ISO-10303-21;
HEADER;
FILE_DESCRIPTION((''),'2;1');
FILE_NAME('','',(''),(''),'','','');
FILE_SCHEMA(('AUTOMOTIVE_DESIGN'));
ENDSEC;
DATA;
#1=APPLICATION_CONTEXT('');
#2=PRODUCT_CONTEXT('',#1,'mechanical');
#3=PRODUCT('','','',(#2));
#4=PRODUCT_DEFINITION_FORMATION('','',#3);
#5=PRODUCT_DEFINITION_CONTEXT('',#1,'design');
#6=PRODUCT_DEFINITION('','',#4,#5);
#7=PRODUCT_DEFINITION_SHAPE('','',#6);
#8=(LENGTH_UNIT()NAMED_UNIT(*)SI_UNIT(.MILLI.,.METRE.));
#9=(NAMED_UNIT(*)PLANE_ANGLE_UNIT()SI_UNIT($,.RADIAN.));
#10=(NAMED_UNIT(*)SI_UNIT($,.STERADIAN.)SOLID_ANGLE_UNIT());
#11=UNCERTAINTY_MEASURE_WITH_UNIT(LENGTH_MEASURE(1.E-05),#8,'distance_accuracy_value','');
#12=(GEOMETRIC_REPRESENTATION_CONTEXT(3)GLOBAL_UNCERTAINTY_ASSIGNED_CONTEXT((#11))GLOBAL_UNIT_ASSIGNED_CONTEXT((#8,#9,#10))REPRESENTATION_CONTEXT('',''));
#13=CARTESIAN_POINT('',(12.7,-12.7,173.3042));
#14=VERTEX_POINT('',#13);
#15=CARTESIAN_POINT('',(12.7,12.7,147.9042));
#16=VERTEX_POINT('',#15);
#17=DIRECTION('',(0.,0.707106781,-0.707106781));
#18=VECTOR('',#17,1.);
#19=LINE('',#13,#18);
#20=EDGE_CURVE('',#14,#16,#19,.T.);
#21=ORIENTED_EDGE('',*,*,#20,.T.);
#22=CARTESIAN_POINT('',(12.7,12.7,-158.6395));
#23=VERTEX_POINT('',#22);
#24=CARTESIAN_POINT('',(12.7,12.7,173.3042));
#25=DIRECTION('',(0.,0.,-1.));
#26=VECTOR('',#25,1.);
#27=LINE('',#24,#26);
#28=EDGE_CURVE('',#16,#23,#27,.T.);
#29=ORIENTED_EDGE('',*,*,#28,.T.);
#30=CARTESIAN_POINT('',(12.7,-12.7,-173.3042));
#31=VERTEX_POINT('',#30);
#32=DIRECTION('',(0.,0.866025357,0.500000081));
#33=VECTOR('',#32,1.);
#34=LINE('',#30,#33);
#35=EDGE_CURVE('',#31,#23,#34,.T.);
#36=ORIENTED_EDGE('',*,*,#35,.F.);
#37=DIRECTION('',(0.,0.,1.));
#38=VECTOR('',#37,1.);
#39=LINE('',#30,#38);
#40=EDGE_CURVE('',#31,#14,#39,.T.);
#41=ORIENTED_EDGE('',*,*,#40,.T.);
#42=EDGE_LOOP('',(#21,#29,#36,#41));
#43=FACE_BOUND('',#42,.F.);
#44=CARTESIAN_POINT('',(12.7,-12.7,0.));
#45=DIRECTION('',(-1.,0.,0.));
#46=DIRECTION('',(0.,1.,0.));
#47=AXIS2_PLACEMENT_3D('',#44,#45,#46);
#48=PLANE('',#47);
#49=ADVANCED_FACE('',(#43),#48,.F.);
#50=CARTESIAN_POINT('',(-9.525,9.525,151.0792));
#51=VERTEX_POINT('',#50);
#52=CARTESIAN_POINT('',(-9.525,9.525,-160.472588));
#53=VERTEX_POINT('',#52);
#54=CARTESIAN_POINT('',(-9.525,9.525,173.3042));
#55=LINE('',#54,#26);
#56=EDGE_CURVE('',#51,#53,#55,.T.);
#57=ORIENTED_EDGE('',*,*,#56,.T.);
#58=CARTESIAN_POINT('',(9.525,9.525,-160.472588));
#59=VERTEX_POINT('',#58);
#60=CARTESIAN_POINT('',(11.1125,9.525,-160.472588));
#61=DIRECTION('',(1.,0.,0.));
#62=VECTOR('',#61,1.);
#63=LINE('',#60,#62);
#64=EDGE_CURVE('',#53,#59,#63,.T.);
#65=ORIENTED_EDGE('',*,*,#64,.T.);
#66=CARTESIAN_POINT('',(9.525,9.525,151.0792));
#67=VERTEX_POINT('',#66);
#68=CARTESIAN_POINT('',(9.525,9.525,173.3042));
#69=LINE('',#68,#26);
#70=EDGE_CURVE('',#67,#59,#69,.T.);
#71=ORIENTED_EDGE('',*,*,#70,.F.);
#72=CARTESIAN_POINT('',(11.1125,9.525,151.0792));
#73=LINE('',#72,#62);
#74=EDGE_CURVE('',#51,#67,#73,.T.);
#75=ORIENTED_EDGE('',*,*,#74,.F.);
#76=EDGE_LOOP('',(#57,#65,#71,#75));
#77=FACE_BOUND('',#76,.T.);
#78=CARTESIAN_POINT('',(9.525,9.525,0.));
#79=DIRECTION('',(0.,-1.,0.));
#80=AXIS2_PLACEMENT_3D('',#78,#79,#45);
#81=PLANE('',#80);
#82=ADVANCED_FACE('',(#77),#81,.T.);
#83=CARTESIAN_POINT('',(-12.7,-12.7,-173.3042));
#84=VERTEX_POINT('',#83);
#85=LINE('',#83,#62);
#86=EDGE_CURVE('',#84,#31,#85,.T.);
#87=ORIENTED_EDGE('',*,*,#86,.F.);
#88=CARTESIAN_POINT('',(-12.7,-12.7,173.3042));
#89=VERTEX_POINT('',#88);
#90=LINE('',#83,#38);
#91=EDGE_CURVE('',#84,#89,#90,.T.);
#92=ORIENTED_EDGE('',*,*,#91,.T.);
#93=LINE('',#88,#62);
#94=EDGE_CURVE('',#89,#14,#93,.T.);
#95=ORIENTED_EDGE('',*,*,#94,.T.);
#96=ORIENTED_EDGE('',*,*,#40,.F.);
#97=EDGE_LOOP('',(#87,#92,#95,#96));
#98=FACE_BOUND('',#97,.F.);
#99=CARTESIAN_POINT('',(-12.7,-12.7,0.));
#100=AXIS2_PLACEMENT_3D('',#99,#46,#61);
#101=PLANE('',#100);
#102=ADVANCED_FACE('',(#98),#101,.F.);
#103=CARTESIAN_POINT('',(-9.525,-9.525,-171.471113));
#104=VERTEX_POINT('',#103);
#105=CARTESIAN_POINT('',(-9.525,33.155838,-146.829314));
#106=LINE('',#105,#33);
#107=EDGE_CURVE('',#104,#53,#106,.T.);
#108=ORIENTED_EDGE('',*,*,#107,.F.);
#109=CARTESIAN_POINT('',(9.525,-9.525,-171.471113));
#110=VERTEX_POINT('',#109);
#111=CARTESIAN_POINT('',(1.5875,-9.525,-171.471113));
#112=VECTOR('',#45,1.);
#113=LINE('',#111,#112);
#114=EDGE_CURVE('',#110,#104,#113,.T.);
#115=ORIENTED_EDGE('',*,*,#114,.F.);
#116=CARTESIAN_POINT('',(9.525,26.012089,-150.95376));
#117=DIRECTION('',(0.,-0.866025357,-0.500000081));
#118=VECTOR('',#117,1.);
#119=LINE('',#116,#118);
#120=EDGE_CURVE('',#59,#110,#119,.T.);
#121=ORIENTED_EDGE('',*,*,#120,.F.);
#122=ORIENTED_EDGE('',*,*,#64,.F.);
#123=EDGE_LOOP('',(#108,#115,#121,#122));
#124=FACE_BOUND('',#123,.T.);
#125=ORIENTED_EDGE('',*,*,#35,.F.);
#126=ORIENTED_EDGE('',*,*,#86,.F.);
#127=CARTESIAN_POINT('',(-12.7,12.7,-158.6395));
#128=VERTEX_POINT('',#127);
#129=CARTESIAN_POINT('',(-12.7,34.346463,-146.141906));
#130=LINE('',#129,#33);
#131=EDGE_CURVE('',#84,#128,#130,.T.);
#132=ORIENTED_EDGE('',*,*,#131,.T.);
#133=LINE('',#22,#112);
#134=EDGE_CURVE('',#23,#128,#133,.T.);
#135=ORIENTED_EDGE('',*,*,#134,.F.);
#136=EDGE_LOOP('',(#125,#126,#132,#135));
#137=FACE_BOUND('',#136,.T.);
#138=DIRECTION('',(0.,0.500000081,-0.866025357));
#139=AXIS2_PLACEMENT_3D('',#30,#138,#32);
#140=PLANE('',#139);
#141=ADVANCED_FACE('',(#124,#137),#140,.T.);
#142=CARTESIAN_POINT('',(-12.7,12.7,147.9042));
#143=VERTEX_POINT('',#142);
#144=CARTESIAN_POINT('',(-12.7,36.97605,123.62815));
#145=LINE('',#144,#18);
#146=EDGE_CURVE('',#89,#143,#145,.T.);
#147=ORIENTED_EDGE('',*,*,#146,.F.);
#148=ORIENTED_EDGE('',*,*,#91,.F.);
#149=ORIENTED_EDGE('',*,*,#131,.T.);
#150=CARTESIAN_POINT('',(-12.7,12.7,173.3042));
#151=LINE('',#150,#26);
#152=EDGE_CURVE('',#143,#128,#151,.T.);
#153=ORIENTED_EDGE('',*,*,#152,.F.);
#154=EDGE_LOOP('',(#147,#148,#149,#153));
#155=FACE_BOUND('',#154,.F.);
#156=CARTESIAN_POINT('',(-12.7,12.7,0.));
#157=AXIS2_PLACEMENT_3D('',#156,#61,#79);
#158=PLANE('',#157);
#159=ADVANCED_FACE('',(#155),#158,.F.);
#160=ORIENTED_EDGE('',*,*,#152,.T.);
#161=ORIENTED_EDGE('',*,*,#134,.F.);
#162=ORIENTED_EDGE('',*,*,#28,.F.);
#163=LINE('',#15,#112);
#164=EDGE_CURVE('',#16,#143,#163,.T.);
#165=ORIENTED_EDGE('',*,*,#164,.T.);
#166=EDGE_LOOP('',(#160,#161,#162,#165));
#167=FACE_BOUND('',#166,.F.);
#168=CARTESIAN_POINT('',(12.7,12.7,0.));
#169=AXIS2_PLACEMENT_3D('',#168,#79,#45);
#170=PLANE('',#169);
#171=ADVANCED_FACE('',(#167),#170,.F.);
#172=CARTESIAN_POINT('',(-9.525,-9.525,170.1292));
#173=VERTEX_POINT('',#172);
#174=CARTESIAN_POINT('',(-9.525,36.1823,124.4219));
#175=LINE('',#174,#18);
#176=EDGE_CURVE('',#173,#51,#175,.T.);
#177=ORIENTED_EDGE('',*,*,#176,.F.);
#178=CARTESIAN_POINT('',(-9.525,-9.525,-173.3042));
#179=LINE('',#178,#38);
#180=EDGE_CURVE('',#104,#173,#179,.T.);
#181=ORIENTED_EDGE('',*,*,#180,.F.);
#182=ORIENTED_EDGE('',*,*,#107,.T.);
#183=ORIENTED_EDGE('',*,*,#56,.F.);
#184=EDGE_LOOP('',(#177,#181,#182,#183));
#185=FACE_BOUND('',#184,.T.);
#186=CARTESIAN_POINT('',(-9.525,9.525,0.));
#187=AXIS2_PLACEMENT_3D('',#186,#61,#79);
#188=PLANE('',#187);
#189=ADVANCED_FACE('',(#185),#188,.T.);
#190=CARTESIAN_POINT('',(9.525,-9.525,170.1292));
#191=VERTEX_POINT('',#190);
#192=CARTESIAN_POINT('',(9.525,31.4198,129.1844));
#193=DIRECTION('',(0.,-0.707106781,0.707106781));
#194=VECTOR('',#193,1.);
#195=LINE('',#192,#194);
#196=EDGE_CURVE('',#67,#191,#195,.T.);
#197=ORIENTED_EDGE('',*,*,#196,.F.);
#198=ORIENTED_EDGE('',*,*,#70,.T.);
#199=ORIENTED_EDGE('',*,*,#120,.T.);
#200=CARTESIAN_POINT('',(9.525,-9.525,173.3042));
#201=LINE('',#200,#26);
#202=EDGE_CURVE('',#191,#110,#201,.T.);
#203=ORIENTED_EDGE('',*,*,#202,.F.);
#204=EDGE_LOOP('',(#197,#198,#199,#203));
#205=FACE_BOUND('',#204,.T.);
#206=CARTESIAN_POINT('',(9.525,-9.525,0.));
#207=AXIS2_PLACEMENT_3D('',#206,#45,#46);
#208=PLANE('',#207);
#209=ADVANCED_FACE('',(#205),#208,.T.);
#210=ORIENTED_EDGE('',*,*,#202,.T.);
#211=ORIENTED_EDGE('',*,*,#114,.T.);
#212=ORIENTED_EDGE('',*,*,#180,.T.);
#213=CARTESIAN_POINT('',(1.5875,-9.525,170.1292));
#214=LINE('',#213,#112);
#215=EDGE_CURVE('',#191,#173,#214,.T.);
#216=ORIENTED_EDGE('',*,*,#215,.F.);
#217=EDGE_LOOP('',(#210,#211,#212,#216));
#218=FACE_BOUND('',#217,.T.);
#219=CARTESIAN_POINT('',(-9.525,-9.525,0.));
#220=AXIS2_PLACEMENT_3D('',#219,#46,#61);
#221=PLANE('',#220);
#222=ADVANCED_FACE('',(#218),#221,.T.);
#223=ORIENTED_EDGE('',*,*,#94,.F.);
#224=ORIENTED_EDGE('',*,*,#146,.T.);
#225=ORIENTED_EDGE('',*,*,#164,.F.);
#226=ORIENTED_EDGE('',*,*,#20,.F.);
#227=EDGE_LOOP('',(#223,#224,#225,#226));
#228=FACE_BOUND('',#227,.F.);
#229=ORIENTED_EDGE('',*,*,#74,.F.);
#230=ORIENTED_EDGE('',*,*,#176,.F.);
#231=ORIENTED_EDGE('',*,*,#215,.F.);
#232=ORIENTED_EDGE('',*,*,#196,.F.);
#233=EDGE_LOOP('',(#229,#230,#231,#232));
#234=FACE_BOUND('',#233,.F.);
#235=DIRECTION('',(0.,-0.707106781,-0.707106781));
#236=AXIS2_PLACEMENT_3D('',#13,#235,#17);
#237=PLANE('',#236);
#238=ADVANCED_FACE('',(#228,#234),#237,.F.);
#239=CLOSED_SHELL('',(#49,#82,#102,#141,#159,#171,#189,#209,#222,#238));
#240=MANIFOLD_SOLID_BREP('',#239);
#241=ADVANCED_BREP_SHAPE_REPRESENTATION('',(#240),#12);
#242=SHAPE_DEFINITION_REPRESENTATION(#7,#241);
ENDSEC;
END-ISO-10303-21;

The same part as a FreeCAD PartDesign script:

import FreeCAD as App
import Part
import Sketcher
from FreeCAD import Vector
Q = App.Units.Quantity

doc = App.newDocument("Part")
params = doc.addObject("Spreadsheet::Sheet", "Params")
for row, (alias, value) in enumerate([
    ("sketch1_width", "1 in"),
    ("pad1_length", "13.646 in"),
    ("sketch2_width", "1 in"),
    ("sketch3_width", "1 in"),
], start=1):
    params.set(f"A{row}", alias)
    params.set(f"B{row}", "=" + value)
    params.setAlias(f"B{row}", alias)

body = doc.addObject("PartDesign::Body", "Body")

# Sketch on XY plane
sketch1 = body.newObject("Sketcher::SketchObject", "Sketch")
sketch1.AttachmentSupport = (doc.getObject("XY_Plane"), [""])
sketch1.MapMode = "FlatFace"
sketch1.addGeometry([
    Part.LineSegment(Vector(-13, 13, 0), Vector(-13, -13, 0)),  # 0
    Part.LineSegment(Vector(-13, -13, 0), Vector(13, -13, 0)),  # 1
    Part.LineSegment(Vector(13, -13, 0), Vector(13, 13, 0)),  # 2
    Part.LineSegment(Vector(13, 13, 0), Vector(-13, 13, 0)),  # 3
    Part.LineSegment(Vector(10, -10, 0), Vector(-10, -10, 0)),  # 4
    Part.LineSegment(Vector(-10, -10, 0), Vector(-10, 10, 0)),  # 5
    Part.LineSegment(Vector(-10, 10, 0), Vector(10, 10, 0)),  # 6
    Part.LineSegment(Vector(10, 10, 0), Vector(10, -10, 0)),  # 7
], False)
sketch1.addConstraint([
    Sketcher.Constraint("Coincident", 0, 2, 1, 1),
    Sketcher.Constraint("Coincident", 1, 2, 2, 1),
    Sketcher.Constraint("Coincident", 2, 2, 3, 1),
    Sketcher.Constraint("Coincident", 3, 2, 0, 1),
    Sketcher.Constraint("Coincident", 4, 2, 5, 1),
    Sketcher.Constraint("Coincident", 5, 2, 6, 1),
    Sketcher.Constraint("Coincident", 6, 2, 7, 1),
    Sketcher.Constraint("Coincident", 7, 2, 4, 1),
    Sketcher.Constraint("Vertical", 0),
    Sketcher.Constraint("Horizontal", 1),
    Sketcher.Constraint("Vertical", 2),
    Sketcher.Constraint("Horizontal", 3),
    Sketcher.Constraint("Horizontal", 4),
    Sketcher.Constraint("Vertical", 5),
    Sketcher.Constraint("Horizontal", 6),
    Sketcher.Constraint("Vertical", 7),
    Sketcher.Constraint("Symmetric", 0, 2, 2, 2, -1, 1),
    Sketcher.Constraint("Symmetric", 4, 2, 6, 2, -1, 1),
    Sketcher.Constraint("Equal", 3, 0),
    Sketcher.Constraint("Equal", 6, 5),
    Sketcher.Constraint("DistanceX", 1, 1, 1, 2, Q("1 in")),
    Sketcher.Constraint("DistanceX", 0, 2, 4, 2, Q("0.125 in")),
])
sketch1.setExpression("Constraints[20]", "Params.sketch1_width")
pad1 = body.newObject("PartDesign::Pad", "Pad")
pad1.Profile = sketch1
pad1.setExpression("Length", "Params.pad1_length")
pad1.Midplane = True

# Sketch on YZ plane
sketch2 = body.newObject("Sketcher::SketchObject", "Sketch001")
sketch2.AttachmentSupport = (doc.getObject("YZ_Plane"), [""])
sketch2.MapMode = "FlatFace"
sketch2.AttachmentOffset = App.Placement(Vector(0, 0, 0.5 * 25.4), App.Rotation())
sketch2.addGeometry([
    Part.LineSegment(Vector(13, -159, 0), Vector(-13, -173, 0)),
    Part.LineSegment(Vector(-13, -173, 0), Vector(13, -173, 0)),
    Part.LineSegment(Vector(13, -173, 0), Vector(13, -159, 0)),
], False)
sketch2.addConstraint([
    Sketcher.Constraint("Coincident", 0, 2, 1, 1),
    Sketcher.Constraint("Coincident", 1, 2, 2, 1),
    Sketcher.Constraint("Coincident", 2, 2, 0, 1),
    Sketcher.Constraint("Horizontal", 1),
    Sketcher.Constraint("Vertical", 2),
    Sketcher.Constraint("DistanceX", 1, 1, 1, 2, Q("1 in")),
    Sketcher.Constraint("Angle", 0, Q("-150 deg")),
    Sketcher.Constraint("DistanceX", 0, 2, -1, 1, Q("0.5 in")),
    Sketcher.Constraint("DistanceY", 0, 2, -1, 1, Q("6.823 in")),
])
sketch2.setExpression("Constraints[5]", "Params.sketch2_width")
pocket1 = body.newObject("PartDesign::Pocket", "Pocket")
pocket1.Profile = sketch2
pocket1.Type = "ThroughAll"

# Sketch on YZ plane
sketch3 = body.newObject("Sketcher::SketchObject", "Sketch002")
sketch3.AttachmentSupport = (doc.getObject("YZ_Plane"), [""])
sketch3.MapMode = "FlatFace"
sketch3.AttachmentOffset = App.Placement(Vector(0, 0, 0.5 * 25.4), App.Rotation())
sketch3.addGeometry([
    Part.LineSegment(Vector(13, 173, 0), Vector(-13, 173, 0)),
    Part.LineSegment(Vector(-13, 173, 0), Vector(13, 148, 0)),
    Part.LineSegment(Vector(13, 148, 0), Vector(13, 173, 0)),
], False)
sketch3.addConstraint([
    Sketcher.Constraint("Coincident", 0, 2, 1, 1),
    Sketcher.Constraint("Coincident", 1, 2, 2, 1),
    Sketcher.Constraint("Coincident", 2, 2, 0, 1),
    Sketcher.Constraint("Horizontal", 0),
    Sketcher.Constraint("Vertical", 2),
    Sketcher.Constraint("Equal", 0, 2),
    Sketcher.Constraint("DistanceX", 0, 2, 0, 1, Q("1 in")),
    Sketcher.Constraint("DistanceX", 0, 2, -1, 1, Q("0.5 in")),
    Sketcher.Constraint("DistanceY", -1, 1, 0, 2, Q("6.823 in")),
])
sketch3.setExpression("Constraints[6]", "Params.sketch3_width")
pocket2 = body.newObject("PartDesign::Pocket", "Pocket001")
pocket2.Profile = sketch3
pocket2.Type = "ThroughAll"

doc.recompute()
